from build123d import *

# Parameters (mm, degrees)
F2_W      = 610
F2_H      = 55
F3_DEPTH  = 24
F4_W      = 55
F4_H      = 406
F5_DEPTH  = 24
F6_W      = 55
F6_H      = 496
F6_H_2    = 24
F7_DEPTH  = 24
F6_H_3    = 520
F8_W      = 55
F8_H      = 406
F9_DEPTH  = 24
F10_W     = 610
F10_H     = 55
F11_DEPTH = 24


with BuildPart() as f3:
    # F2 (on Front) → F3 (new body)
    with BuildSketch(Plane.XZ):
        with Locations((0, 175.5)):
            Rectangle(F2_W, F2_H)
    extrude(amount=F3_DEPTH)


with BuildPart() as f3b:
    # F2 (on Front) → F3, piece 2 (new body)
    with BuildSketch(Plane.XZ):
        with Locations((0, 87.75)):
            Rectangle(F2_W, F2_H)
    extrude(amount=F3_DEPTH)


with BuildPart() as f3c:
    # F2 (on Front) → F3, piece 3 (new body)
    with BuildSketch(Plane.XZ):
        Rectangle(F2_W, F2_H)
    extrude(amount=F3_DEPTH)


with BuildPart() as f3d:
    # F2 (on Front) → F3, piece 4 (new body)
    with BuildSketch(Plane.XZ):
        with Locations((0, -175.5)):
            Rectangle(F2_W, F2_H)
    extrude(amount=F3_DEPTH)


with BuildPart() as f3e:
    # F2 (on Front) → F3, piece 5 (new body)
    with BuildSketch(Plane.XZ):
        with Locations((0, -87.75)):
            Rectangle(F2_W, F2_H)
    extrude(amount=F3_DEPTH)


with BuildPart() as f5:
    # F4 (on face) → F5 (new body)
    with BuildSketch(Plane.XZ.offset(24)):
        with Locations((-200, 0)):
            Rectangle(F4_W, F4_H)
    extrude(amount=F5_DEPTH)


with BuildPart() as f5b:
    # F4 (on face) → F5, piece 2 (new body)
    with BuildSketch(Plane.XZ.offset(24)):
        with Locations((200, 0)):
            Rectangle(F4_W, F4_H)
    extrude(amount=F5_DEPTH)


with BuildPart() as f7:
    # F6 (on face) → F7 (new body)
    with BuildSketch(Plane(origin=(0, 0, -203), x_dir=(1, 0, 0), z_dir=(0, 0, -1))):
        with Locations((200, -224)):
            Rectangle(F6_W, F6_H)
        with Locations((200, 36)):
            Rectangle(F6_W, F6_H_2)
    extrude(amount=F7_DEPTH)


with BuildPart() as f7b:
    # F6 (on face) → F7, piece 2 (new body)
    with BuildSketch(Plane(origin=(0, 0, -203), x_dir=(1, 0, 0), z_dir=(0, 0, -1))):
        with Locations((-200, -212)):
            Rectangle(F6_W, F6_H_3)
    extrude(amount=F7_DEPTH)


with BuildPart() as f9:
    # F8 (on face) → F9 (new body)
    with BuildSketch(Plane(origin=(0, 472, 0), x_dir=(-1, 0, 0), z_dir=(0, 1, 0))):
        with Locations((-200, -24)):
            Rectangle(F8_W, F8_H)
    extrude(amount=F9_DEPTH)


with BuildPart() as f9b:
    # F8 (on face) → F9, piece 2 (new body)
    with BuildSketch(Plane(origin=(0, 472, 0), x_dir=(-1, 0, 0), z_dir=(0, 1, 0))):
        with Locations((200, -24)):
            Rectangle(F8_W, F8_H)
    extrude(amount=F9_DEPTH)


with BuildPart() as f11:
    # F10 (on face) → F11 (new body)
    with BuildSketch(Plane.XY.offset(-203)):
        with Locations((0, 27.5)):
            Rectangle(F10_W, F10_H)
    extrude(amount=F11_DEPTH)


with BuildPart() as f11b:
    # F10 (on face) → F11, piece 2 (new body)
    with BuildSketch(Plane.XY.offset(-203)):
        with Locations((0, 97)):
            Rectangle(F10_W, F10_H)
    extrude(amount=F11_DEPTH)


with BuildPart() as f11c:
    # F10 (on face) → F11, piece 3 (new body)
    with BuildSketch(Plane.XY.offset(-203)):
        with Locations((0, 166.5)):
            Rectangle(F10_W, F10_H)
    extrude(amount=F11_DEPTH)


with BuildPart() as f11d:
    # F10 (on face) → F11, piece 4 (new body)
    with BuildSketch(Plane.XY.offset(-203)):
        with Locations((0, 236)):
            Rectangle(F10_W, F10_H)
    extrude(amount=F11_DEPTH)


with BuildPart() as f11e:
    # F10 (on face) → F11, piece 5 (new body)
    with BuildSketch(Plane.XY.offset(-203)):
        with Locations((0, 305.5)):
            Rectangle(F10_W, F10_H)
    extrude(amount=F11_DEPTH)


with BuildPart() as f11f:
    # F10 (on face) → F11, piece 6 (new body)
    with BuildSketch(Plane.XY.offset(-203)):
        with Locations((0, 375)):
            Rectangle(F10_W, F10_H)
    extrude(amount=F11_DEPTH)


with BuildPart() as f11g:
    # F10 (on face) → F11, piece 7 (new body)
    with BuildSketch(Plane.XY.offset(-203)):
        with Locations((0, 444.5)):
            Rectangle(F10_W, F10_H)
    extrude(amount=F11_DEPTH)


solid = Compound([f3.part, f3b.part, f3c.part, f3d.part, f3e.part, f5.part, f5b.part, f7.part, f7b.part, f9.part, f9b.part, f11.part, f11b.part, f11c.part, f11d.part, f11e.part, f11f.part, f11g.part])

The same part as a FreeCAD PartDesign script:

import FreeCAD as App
import Part
import Sketcher
Q = App.Units.Quantity

doc = App.newDocument("Part")
params = doc.addObject("Spreadsheet::Sheet", "Params")
for row, (alias, value) in enumerate([
    ("sketch1_width", "610 mm"),
    ("sketch1_height", "55 mm"),
    ("pad1_length", "24 mm"),
    ("sketch2_width", "610 mm"),
    ("sketch2_height", "55 mm"),
    ("pad2_length", "24 mm"),
    ("sketch3_width", "610 mm"),
    ("sketch3_height", "55 mm"),
    ("pad3_length", "24 mm"),
    ("sketch4_width", "610 mm"),
    ("sketch4_height", "55 mm"),
    ("pad4_length", "24 mm"),
    ("sketch5_width", "610 mm"),
    ("sketch5_height", "55 mm"),
    ("pad5_length", "24 mm"),
    ("sketch6_width", "55 mm"),
    ("sketch6_height", "406 mm"),
    ("pad6_length", "24 mm"),
    ("sketch7_width", "55 mm"),
    ("sketch7_height", "406 mm"),
    ("pad7_length", "24 mm"),
    ("sketch8_width", "55 mm"),
    ("sketch8_height", "520 mm"),
    ("pad8_length", "24 mm"),
    ("sketch9_width", "55 mm"),
    ("sketch9_height", "520 mm"),
    ("pad9_length", "24 mm"),
    ("sketch10_width", "55 mm"),
    ("sketch10_height", "406 mm"),
    ("pad10_length", "24 mm"),
    ("sketch11_width", "55 mm"),
    ("sketch11_height", "406 mm"),
    ("pad11_length", "24 mm"),
    ("sketch12_width", "610 mm"),
    ("sketch12_height", "55 mm"),
    ("pad12_length", "24 mm"),
    ("sketch13_width", "610 mm"),
    ("sketch13_height", "55 mm"),
    ("pad13_length", "24 mm"),
    ("sketch14_width", "610 mm"),
    ("sketch14_height", "55 mm"),
    ("pad14_length", "24 mm"),
    ("sketch15_width", "610 mm"),
    ("sketch15_height", "55 mm"),
    ("pad15_length", "24 mm"),
    ("sketch16_width", "610 mm"),
    ("sketch16_height", "55 mm"),
    ("pad16_length", "24 mm"),
    ("sketch17_width", "610 mm"),
    ("sketch17_height", "55 mm"),
    ("pad17_length", "24 mm"),
    ("sketch18_width", "610 mm"),
    ("sketch18_height", "55 mm"),
    ("pad18_length", "24 mm"),
], start=1):
    params.set(f"A{row}", alias)
    params.set(f"B{row}", "=" + value)
    params.setAlias(f"B{row}", alias)

body = doc.addObject("PartDesign::Body", "Body")

sketch1 = doc.addObject("Sketcher::SketchObject", "Sketch")
body.addObject(sketch1)
sketch1.AttachmentSupport = (doc.XZ_Plane, [""])
sketch1.MapMode = "FlatFace"
sketch1.addGeometry([
    Part.LineSegment(App.Vector(-305, 203, 0), App.Vector(-305, 148, 0)),
    Part.LineSegment(App.Vector(-305, 148, 0), App.Vector(305, 148, 0)),
    Part.LineSegment(App.Vector(305, 148, 0), App.Vector(305, 203, 0)),
    Part.LineSegment(App.Vector(305, 203, 0), App.Vector(-305, 203, 0)),
], False)
sketch1.addConstraint([
    Sketcher.Constraint("Coincident", 0, 2, 1, 1),
    Sketcher.Constraint("Coincident", 1, 2, 2, 1),
    Sketcher.Constraint("Coincident", 2, 2, 3, 1),
    Sketcher.Constraint("Coincident", 3, 2, 0, 1),
    Sketcher.Constraint("Vertical", 0),
    Sketcher.Constraint("Horizontal", 1),
    Sketcher.Constraint("Vertical", 2),
    Sketcher.Constraint("Horizontal", 3),
    Sketcher.Constraint("DistanceX", 1, 1, 1, 2, Q("610 mm")),
    Sketcher.Constraint("DistanceY", 0, 2, 0, 1, Q("55 mm")),
    Sketcher.Constraint("DistanceX", 0, 2, -1, 1, Q("305 mm")),
    Sketcher.Constraint("DistanceY", -1, 1, 0, 2, Q("148 mm")),
])
sketch1.setExpression("Constraints[8]", "Params.sketch1_width")
sketch1.setExpression("Constraints[9]", "Params.sketch1_height")
pad1 = doc.addObject("PartDesign::Pad", "Pad")
body.addObject(pad1)
pad1.Profile = sketch1
pad1.setExpression("Length", "Params.pad1_length")
body2 = doc.addObject("PartDesign::Body", "Body001")

sketch2 = doc.addObject("Sketcher::SketchObject", "Sketch001")
body2.addObject(sketch2)
sketch2.AttachmentSupport = (doc.getObject("XZ_Plane001"), [""])
sketch2.MapMode = "FlatFace"
sketch2.addGeometry([
    Part.LineSegment(App.Vector(-305, 115, 0), App.Vector(-305, 60, 0)),
    Part.LineSegment(App.Vector(-305, 60, 0), App.Vector(305, 60, 0)),
    Part.LineSegment(App.Vector(305, 60, 0), App.Vector(305, 115, 0)),
    Part.LineSegment(App.Vector(305, 115, 0), App.Vector(-305, 115, 0)),
], False)
sketch2.addConstraint([
    Sketcher.Constraint("Coincident", 0, 2, 1, 1),
    Sketcher.Constraint("Coincident", 1, 2, 2, 1),
    Sketcher.Constraint("Coincident", 2, 2, 3, 1),
    Sketcher.Constraint("Coincident", 3, 2, 0, 1),
    Sketcher.Constraint("Vertical", 0),
    Sketcher.Constraint("Horizontal", 1),
    Sketcher.Constraint("Vertical", 2),
    Sketcher.Constraint("Horizontal", 3),
    Sketcher.Constraint("DistanceX", 1, 1, 1, 2, Q("610 mm")),
    Sketcher.Constraint("DistanceY", 0, 2, 0, 1, Q("55 mm")),
    Sketcher.Constraint("DistanceX", 0, 2, -1, 1, Q("305 mm")),
    Sketcher.Constraint("DistanceY", -1, 1, 0, 2, Q("60.25 mm")),
])
sketch2.setExpression("Constraints[8]", "Params.sketch2_width")
sketch2.setExpression("Constraints[9]", "Params.sketch2_height")
pad2 = doc.addObject("PartDesign::Pad", "Pad001")
body2.addObject(pad2)
pad2.Profile = sketch2
pad2.setExpression("Length", "Params.pad2_length")
body3 = doc.addObject("PartDesign::Body", "Body002")

sketch3 = doc.addObject("Sketcher::SketchObject", "Sketch002")
body3.addObject(sketch3)
sketch3.AttachmentSupport = (doc.getObject("XZ_Plane002"), [""])
sketch3.MapMode = "FlatFace"
sketch3.addGeometry([
    Part.LineSegment(App.Vector(-305, 28, 0), App.Vector(-305, -28, 0)),
    Part.LineSegment(App.Vector(-305, -28, 0), App.Vector(305, -28, 0)),
    Part.LineSegment(App.Vector(305, -28, 0), App.Vector(305, 28, 0)),
    Part.LineSegment(App.Vector(305, 28, 0), App.Vector(-305, 28, 0)),
], False)
sketch3.addConstraint([
    Sketcher.Constraint("Coincident", 0, 2, 1, 1),
    Sketcher.Constraint("Coincident", 1, 2, 2, 1),
    Sketcher.Constraint("Coincident", 2, 2, 3, 1),
    Sketcher.Constraint("Coincident", 3, 2, 0, 1),
    Sketcher.Constraint("Vertical", 0),
    Sketcher.Constraint("Horizontal", 1),
    Sketcher.Constraint("Vertical", 2),
    Sketcher.Constraint("Horizontal", 3),
    Sketcher.Constraint("Symmetric", 0, 2, 2, 2, -1, 1),
    Sketcher.Constraint("DistanceX", 1, 1, 1, 2, Q("610 mm")),
    Sketcher.Constraint("DistanceY", 0, 2, 0, 1, Q("55 mm")),
])
sketch3.setExpression("Constraints[9]", "Params.sketch3_width")
sketch3.setExpression("Constraints[10]", "Params.sketch3_height")
pad3 = doc.addObject("PartDesign::Pad", "Pad002")
body3.addObject(pad3)
pad3.Profile = sketch3
pad3.setExpression("Length", "Params.pad3_length")
body4 = doc.addObject("PartDesign::Body", "Body003")

sketch4 = doc.addObject("Sketcher::SketchObject", "Sketch003")
body4.addObject(sketch4)
sketch4.AttachmentSupport = (doc.getObject("XZ_Plane003"), [""])
sketch4.MapMode = "FlatFace"
sketch4.addGeometry([
    Part.LineSegment(App.Vector(-305, -148, 0), App.Vector(-305, -203, 0)),
    Part.LineSegment(App.Vector(-305, -203, 0), App.Vector(305, -203, 0)),
    Part.LineSegment(App.Vector(305, -203, 0), App.Vector(305, -148, 0)),
    Part.LineSegment(App.Vector(305, -148, 0), App.Vector(-305, -148, 0)),
], False)
sketch4.addConstraint([
    Sketcher.Constraint("Coincident", 0, 2, 1, 1),
    Sketcher.Constraint("Coincident", 1, 2, 2, 1),
    Sketcher.Constraint("Coincident", 2, 2, 3, 1),
    Sketcher.Constraint("Coincident", 3, 2, 0, 1),
    Sketcher.Constraint("Vertical", 0),
    Sketcher.Constraint("Horizontal", 1),
    Sketcher.Constraint("Vertical", 2),
    Sketcher.Constraint("Horizontal", 3),
    Sketcher.Constraint("DistanceX", 1, 1, 1, 2, Q("610 mm")),
    Sketcher.Constraint("DistanceY", 0, 2, 0, 1, Q("55 mm")),
    Sketcher.Constraint("DistanceX", 0, 2, -1, 1, Q("305 mm")),
    Sketcher.Constraint("DistanceY", 0, 2, -1, 1, Q("203 mm")),
])
sketch4.setExpression("Constraints[8]", "Params.sketch4_width")
sketch4.setExpression("Constraints[9]", "Params.sketch4_height")
pad4 = doc.addObject("PartDesign::Pad", "Pad003")
body4.addObject(pad4)
pad4.Profile = sketch4
pad4.setExpression("Length", "Params.pad4_length")
body5 = doc.addObject("PartDesign::Body", "Body004")

sketch5 = doc.addObject("Sketcher::SketchObject", "Sketch004")
body5.addObject(sketch5)
sketch5.AttachmentSupport = (doc.getObject("XZ_Plane004"), [""])
sketch5.MapMode = "FlatFace"
sketch5.addGeometry([
    Part.LineSegment(App.Vector(-305, -60, 0), App.Vector(-305, -115, 0)),
    Part.LineSegment(App.Vector(-305, -115, 0), App.Vector(305, -115, 0)),
    Part.LineSegment(App.Vector(305, -115, 0), App.Vector(305, -60, 0)),
    Part.LineSegment(App.Vector(305, -60, 0), App.Vector(-305, -60, 0)),
], False)
sketch5.addConstraint([
    Sketcher.Constraint("Coincident", 0, 2, 1, 1),
    Sketcher.Constraint("Coincident", 1, 2, 2, 1),
    Sketcher.Constraint("Coincident", 2, 2, 3, 1),
    Sketcher.Constraint("Coincident", 3, 2, 0, 1),
    Sketcher.Constraint("Vertical", 0),
    Sketcher.Constraint("Horizontal", 1),
    Sketcher.Constraint("Vertical", 2),
    Sketcher.Constraint("Horizontal", 3),
    Sketcher.Constraint("DistanceX", 1, 1, 1, 2, Q("610 mm")),
    Sketcher.Constraint("DistanceY", 0, 2, 0, 1, Q("55 mm")),
    Sketcher.Constraint("DistanceX", 0, 2, -1, 1, Q("305 mm")),
    Sketcher.Constraint("DistanceY", 0, 2, -1, 1, Q("115.25 mm")),
])
sketch5.setExpression("Constraints[8]", "Params.sketch5_width")
sketch5.setExpression("Constraints[9]", "Params.sketch5_height")
pad5 = doc.addObject("PartDesign::Pad", "Pad004")
body5.addObject(pad5)
pad5.Profile = sketch5
pad5.setExpression("Length", "Params.pad5_length")
body6 = doc.addObject("PartDesign::Body", "Body005")

sketch6 = doc.addObject("Sketcher::SketchObject", "Sketch005")
body6.addObject(sketch6)
sketch6.AttachmentSupport = (doc.getObject("XZ_Plane005"), [""])
sketch6.MapMode = "FlatFace"
sketch6.AttachmentOffset = App.Placement(App.Vector(0, 0, 24), App.Rotation())
sketch6.addGeometry([
    Part.LineSegment(App.Vector(-228, 203, 0), App.Vector(-228, -203, 0)),
    Part.LineSegment(App.Vector(-228, -203, 0), App.Vector(-172, -203, 0)),
    Part.LineSegment(App.Vector(-172, -203, 0), App.Vector(-172, 203, 0)),
    Part.LineSegment(App.Vector(-172, 203, 0), App.Vector(-228, 203, 0)),
], False)
sketch6.addConstraint([
    Sketcher.Constraint("Coincident", 0, 2, 1, 1),
    Sketcher.Constraint("Coincident", 1, 2, 2, 1),
    Sketcher.Constraint("Coincident", 2, 2, 3, 1),
    Sketcher.Constraint("Coincident", 3, 2, 0, 1),
    Sketcher.Constraint("Vertical", 0),
    Sketcher.Constraint("Horizontal", 1),
    Sketcher.Constraint("Vertical", 2),
    Sketcher.Constraint("Horizontal", 3),
    Sketcher.Constraint("DistanceX", 1, 1, 1, 2, Q("55 mm")),
    Sketcher.Constraint("DistanceY", 0, 2, 0, 1, Q("406 mm")),
    Sketcher.Constraint("DistanceY", 0, 2, -1, 1, Q("203 mm")),
    Sketcher.Constraint("DistanceX", 0, 2, -1, 1, Q("227.5 mm")),
])
sketch6.setExpression("Constraints[8]", "Params.sketch6_width")
sketch6.setExpression("Constraints[9]", "Params.sketch6_height")
pad6 = doc.addObject("PartDesign::Pad", "Pad005")
body6.addObject(pad6)
pad6.Profile = sketch6
pad6.setExpression("Length", "Params.pad6_length")
body7 = doc.addObject("PartDesign::Body", "Body006")

sketch7 = doc.addObject("Sketcher::SketchObject", "Sketch006")
body7.addObject(sketch7)
sketch7.AttachmentSupport = (doc.getObject("XZ_Plane006"), [""])
sketch7.MapMode = "FlatFace"
sketch7.AttachmentOffset = App.Placement(App.Vector(0, 0, 24), App.Rotation())
sketch7.addGeometry([
    Part.LineSegment(App.Vector(172, 203, 0), App.Vector(172, -203, 0)),
    Part.LineSegment(App.Vector(172, -203, 0), App.Vector(228, -203, 0)),
    Part.LineSegment(App.Vector(228, -203, 0), App.Vector(228, 203, 0)),
    Part.LineSegment(App.Vector(228, 203, 0), App.Vector(172, 203, 0)),
], False)
sketch7.addConstraint([
    Sketcher.Constraint("Coincident", 0, 2, 1, 1),
    Sketcher.Constraint("Coincident", 1, 2, 2, 1),
    Sketcher.Constraint("Coincident", 2, 2, 3, 1),
    Sketcher.Constraint("Coincident", 3, 2, 0, 1),
    Sketcher.Constraint("Vertical", 0),
    Sketcher.Constraint("Horizontal", 1),
    Sketcher.Constraint("Vertical", 2),
    Sketcher.Constraint("Horizontal", 3),
    Sketcher.Constraint("DistanceX", 1, 1, 1, 2, Q("55 mm")),
    Sketcher.Constraint("DistanceY", 0, 2, 0, 1, Q("406 mm")),
    Sketcher.Constraint("DistanceY", 0, 2, -1, 1, Q("203 mm")),
    Sketcher.Constraint("DistanceX", -1, 1, 0, 2, Q("172.5 mm")),
])
sketch7.setExpression("Constraints[8]", "Params.sketch7_width")
sketch7.setExpression("Constraints[9]", "Params.sketch7_height")
pad7 = doc.addObject("PartDesign::Pad", "Pad006")
body7.addObject(pad7)
pad7.Profile = sketch7
pad7.setExpression("Length", "Params.pad7_length")
body8 = doc.addObject("PartDesign::Body", "Body007")

sketch8 = doc.addObject("Sketcher::SketchObject", "Sketch007")
body8.addObject(sketch8)
sketch8.AttachmentSupport = (doc.getObject("XY_Plane007"), [""])
sketch8.MapMode = "FlatFace"
sketch8.AttachmentOffset = App.Placement(App.Vector(0, 0, -203), App.Rotation())
sketch8.addGeometry([
    Part.LineSegment(App.Vector(172, 472, 0), App.Vector(228, 472, 0)),
    Part.LineSegment(App.Vector(228, 472, 0), App.Vector(228, -48, 0)),
    Part.LineSegment(App.Vector(228, -48, 0), App.Vector(172, -48, 0)),
    Part.LineSegment(App.Vector(172, -48, 0), App.Vector(172, 472, 0)),
], False)
sketch8.addConstraint([
    Sketcher.Constraint("Coincident", 0, 2, 1, 1),
    Sketcher.Constraint("Coincident", 1, 2, 2, 1),
    Sketcher.Constraint("Coincident", 2, 2, 3, 1),
    Sketcher.Constraint("Coincident", 3, 2, 0, 1),
    Sketcher.Constraint("Horizontal", 0),
    Sketcher.Constraint("Vertical", 1),
    Sketcher.Constraint("Horizontal", 2),
    Sketcher.Constraint("Vertical", 3),
    Sketcher.Constraint("DistanceX", 0, 1, 0, 2, Q("55 mm")),
    Sketcher.Constraint("DistanceY", 1, 2, 1, 1, Q("520 mm")),
    Sketcher.Constraint("DistanceY", -1, 1, 0, 2, Q("472 mm")),
    Sketcher.Constraint("DistanceX", -1, 1, 0, 2, Q("227.5 mm")),
])
sketch8.setExpression("Constraints[8]", "Params.sketch8_width")
sketch8.setExpression("Constraints[9]", "Params.sketch8_height")
pad8 = doc.addObject("PartDesign::Pad", "Pad007")
body8.addObject(pad8)
pad8.Profile = sketch8
pad8.setExpression("Length", "Params.pad8_length")
pad8.Reversed = True
body9 = doc.addObject("PartDesign::Body", "Body008")

sketch9 = doc.addObject("Sketcher::SketchObject", "Sketch008")
body9.addObject(sketch9)
sketch9.AttachmentSupport = (doc.getObject("XY_Plane008"), [""])
sketch9.MapMode = "FlatFace"
sketch9.AttachmentOffset = App.Placement(App.Vector(0, 0, -203), App.Rotation())
sketch9.addGeometry([
    Part.LineSegment(App.Vector(-228, -48, 0), App.Vector(-228, 472, 0)),
    Part.LineSegment(App.Vector(-228, 472, 0), App.Vector(-172, 472, 0)),
    Part.LineSegment(App.Vector(-172, 472, 0), App.Vector(-172, -48, 0)),
    Part.LineSegment(App.Vector(-172, -48, 0), App.Vector(-228, -48, 0)),
], False)
sketch9.addConstraint([
    Sketcher.Constraint("Coincident", 0, 2, 1, 1),
    Sketcher.Constraint("Coincident", 1, 2, 2, 1),
    Sketcher.Constraint("Coincident", 2, 2, 3, 1),
    Sketcher.Constraint("Coincident", 3, 2, 0, 1),
    Sketcher.Constraint("Vertical", 0),
    Sketcher.Constraint("Horizontal", 1),
    Sketcher.Constraint("Vertical", 2),
    Sketcher.Constraint("Horizontal", 3),
    Sketcher.Constraint("DistanceX", 1, 1, 1, 2, Q("55 mm")),
    Sketcher.Constraint("DistanceY", 0, 1, 0, 2, Q("520 mm")),
    Sketcher.Constraint("DistanceY", -1, 1, 0, 2, Q("472 mm")),
    Sketcher.Constraint("DistanceX", 0, 2, -1, 1, Q("227.5 mm")),
])
sketch9.setExpression("Constraints[8]", "Params.sketch9_width")
sketch9.setExpression("Constraints[9]", "Params.sketch9_height")
pad9 = doc.addObject("PartDesign::Pad", "Pad008")
body9.addObject(pad9)
pad9.Profile = sketch9
pad9.setExpression("Length", "Params.pad9_length")
pad9.Reversed = True
body10 = doc.addObject("PartDesign::Body", "Body009")

sketch10 = doc.addObject("Sketcher::SketchObject", "Sketch009")
body10.addObject(sketch10)
sketch10.AttachmentSupport = (doc.getObject("XZ_Plane009"), [""])
sketch10.MapMode = "FlatFace"
sketch10.AttachmentOffset = App.Placement(App.Vector(0, 0, -472), App.Rotation())
sketch10.addGeometry([
    Part.LineSegment(App.Vector(228, 179, 0), App.Vector(228, -227, 0)),
    Part.LineSegment(App.Vector(228, -227, 0), App.Vector(172, -227, 0)),
    Part.LineSegment(App.Vector(172, -227, 0), App.Vector(172, 179, 0)),
    Part.LineSegment(App.Vector(172, 179, 0), App.Vector(228, 179, 0)),
], False)
sketch10.addConstraint([
    Sketcher.Constraint("Coincident", 0, 2, 1, 1),
    Sketcher.Constraint("Coincident", 1, 2, 2, 1),
    Sketcher.Constraint("Coincident", 2, 2, 3, 1),
    Sketcher.Constraint("Coincident", 3, 2, 0, 1),
    Sketcher.Constraint("Vertical", 0),
    Sketcher.Constraint("Horizontal", 1),
    Sketcher.Constraint("Vertical", 2),
    Sketcher.Constraint("Horizontal", 3),
    Sketcher.Constraint("DistanceX", 1, 2, 1, 1, Q("55 mm")),
    Sketcher.Constraint("DistanceY", 0, 2, 0, 1, Q("406 mm")),
    Sketcher.Constraint("DistanceY", 0, 2, -1, 1, Q("227 mm")),
    Sketcher.Constraint("DistanceX", -1, 1, 0, 2, Q("227.5 mm")),
])
sketch10.setExpression("Constraints[8]", "Params.sketch10_width")
sketch10.setExpression("Constraints[9]", "Params.sketch10_height")
pad10 = doc.addObject("PartDesign::Pad", "Pad009")
body10.addObject(pad10)
pad10.Profile = sketch10
pad10.setExpression("Length", "Params.pad10_length")
pad10.Reversed = True
body11 = doc.addObject("PartDesign::Body", "Body010")

sketch11 = doc.addObject("Sketcher::SketchObject", "Sketch010")
body11.addObject(sketch11)
sketch11.AttachmentSupport = (doc.getObject("XZ_Plane010"), [""])
sketch11.MapMode = "FlatFace"
sketch11.AttachmentOffset = App.Placement(App.Vector(0, 0, -472), App.Rotation())
sketch11.addGeometry([
    Part.LineSegment(App.Vector(-172, 179, 0), App.Vector(-172, -227, 0)),
    Part.LineSegment(App.Vector(-172, -227, 0), App.Vector(-228, -227, 0)),
    Part.LineSegment(App.Vector(-228, -227, 0), App.Vector(-228, 179, 0)),
    Part.LineSegment(App.Vector(-228, 179, 0), App.Vector(-172, 179, 0)),
], False)
sketch11.addConstraint([
    Sketcher.Constraint("Coincident", 0, 2, 1, 1),
    Sketcher.Constraint("Coincident", 1, 2, 2, 1),
    Sketcher.Constraint("Coincident", 2, 2, 3, 1),
    Sketcher.Constraint("Coincident", 3, 2, 0, 1),
    Sketcher.Constraint("Vertical", 0),
    Sketcher.Constraint("Horizontal", 1),
    Sketcher.Constraint("Vertical", 2),
    Sketcher.Constraint("Horizontal", 3),
    Sketcher.Constraint("DistanceX", 1, 2, 1, 1, Q("55 mm")),
    Sketcher.Constraint("DistanceY", 0, 2, 0, 1, Q("406 mm")),
    Sketcher.Constraint("DistanceY", 0, 2, -1, 1, Q("227 mm")),
    Sketcher.Constraint("DistanceX", 0, 2, -1, 1, Q("172.5 mm")),
])
sketch11.setExpression("Constraints[8]", "Params.sketch11_width")
sketch11.setExpression("Constraints[9]", "Params.sketch11_height")
pad11 = doc.addObject("PartDesign::Pad", "Pad010")
body11.addObject(pad11)
pad11.Profile = sketch11
pad11.setExpression("Length", "Params.pad11_length")
pad11.Reversed = True
body12 = doc.addObject("PartDesign::Body", "Body011")

sketch12 = doc.addObject("Sketcher::SketchObject", "Sketch011")
body12.addObject(sketch12)
sketch12.AttachmentSupport = (doc.getObject("XY_Plane011"), [""])
sketch12.MapMode = "FlatFace"
sketch12.AttachmentOffset = App.Placement(App.Vector(0, 0, -203), App.Rotation())
sketch12.addGeometry([
    Part.LineSegment(App.Vector(-305, 55, 0), App.Vector(-305, 0, 0)),
    Part.LineSegment(App.Vector(-305, 0, 0), App.Vector(305, 0, 0)),
    Part.LineSegment(App.Vector(305, 0, 0), App.Vector(305, 55, 0)),
    Part.LineSegment(App.Vector(305, 55, 0), App.Vector(-305, 55, 0)),
], False)
sketch12.addConstraint([
    Sketcher.Constraint("Coincident", 0, 2, 1, 1),
    Sketcher.Constraint("Coincident", 1, 2, 2, 1),
    Sketcher.Constraint("Coincident", 2, 2, 3, 1),
    Sketcher.Constraint("Coincident", 3, 2, 0, 1),
    Sketcher.Constraint("Vertical", 0),
    Sketcher.Constraint("Horizontal", 1),
    Sketcher.Constraint("Vertical", 2),
    Sketcher.Constraint("Horizontal", 3),
    Sketcher.Constraint("Symmetric", 0, 2, 1, 2, -1, 1),
    Sketcher.Constraint("DistanceX", 1, 1, 1, 2, Q("610 mm")),
    Sketcher.Constraint("DistanceY", 0, 2, 0, 1, Q("55 mm")),
])
sketch12.setExpression("Constraints[9]", "Params.sketch12_width")
sketch12.setExpression("Constraints[10]", "Params.sketch12_height")
pad12 = doc.addObject("PartDesign::Pad", "Pad011")
body12.addObject(pad12)
pad12.Profile = sketch12
pad12.setExpression("Length", "Params.pad12_length")
body13 = doc.addObject("PartDesign::Body", "Body012")

sketch13 = doc.addObject("Sketcher::SketchObject", "Sketch012")
body13.addObject(sketch13)
sketch13.AttachmentSupport = (doc.getObject("XY_Plane012"), [""])
sketch13.MapMode = "FlatFace"
sketch13.AttachmentOffset = App.Placement(App.Vector(0, 0, -203), App.Rotation())
sketch13.addGeometry([
    Part.LineSegment(App.Vector(-305, 124, 0), App.Vector(-305, 70, 0)),
    Part.LineSegment(App.Vector(-305, 70, 0), App.Vector(305, 70, 0)),
    Part.LineSegment(App.Vector(305, 70, 0), App.Vector(305, 124, 0)),
    Part.LineSegment(App.Vector(305, 124, 0), App.Vector(-305, 124, 0)),
], False)
sketch13.addConstraint([
    Sketcher.Constraint("Coincident", 0, 2, 1, 1),
    Sketcher.Constraint("Coincident", 1, 2, 2, 1),
    Sketcher.Constraint("Coincident", 2, 2, 3, 1),
    Sketcher.Constraint("Coincident", 3, 2, 0, 1),
    Sketcher.Constraint("Vertical", 0),
    Sketcher.Constraint("Horizontal", 1),
    Sketcher.Constraint("Vertical", 2),
    Sketcher.Constraint("Horizontal", 3),
    Sketcher.Constraint("DistanceX", 1, 1, 1, 2, Q("610 mm")),
    Sketcher.Constraint("DistanceY", 0, 2, 0, 1, Q("55 mm")),
    Sketcher.Constraint("DistanceX", 0, 2, -1, 1, Q("305 mm")),
    Sketcher.Constraint("DistanceY", -1, 1, 0, 2, Q("69.5 mm")),
])
sketch13.setExpression("Constraints[8]", "Params.sketch13_width")
sketch13.setExpression("Constraints[9]", "Params.sketch13_height")
pad13 = doc.addObject("PartDesign::Pad", "Pad012")
body13.addObject(pad13)
pad13.Profile = sketch13
pad13.setExpression("Length", "Params.pad13_length")
body14 = doc.addObject("PartDesign::Body", "Body013")

sketch14 = doc.addObject("Sketcher::SketchObject", "Sketch013")
body14.addObject(sketch14)
sketch14.AttachmentSupport = (doc.getObject("XY_Plane013"), [""])
sketch14.MapMode = "FlatFace"
sketch14.AttachmentOffset = App.Placement(App.Vector(0, 0, -203), App.Rotation())
sketch14.addGeometry([
    Part.LineSegment(App.Vector(-305, 194, 0), App.Vector(-305, 139, 0)),
    Part.LineSegment(App.Vector(-305, 139, 0), App.Vector(305, 139, 0)),
    Part.LineSegment(App.Vector(305, 139, 0), App.Vector(305, 194, 0)),
    Part.LineSegment(App.Vector(305, 194, 0), App.Vector(-305, 194, 0)),
], False)
sketch14.addConstraint([
    Sketcher.Constraint("Coincident", 0, 2, 1, 1),
    Sketcher.Constraint("Coincident", 1, 2, 2, 1),
    Sketcher.Constraint("Coincident", 2, 2, 3, 1),
    Sketcher.Constraint("Coincident", 3, 2, 0, 1),
    Sketcher.Constraint("Vertical", 0),
    Sketcher.Constraint("Horizontal", 1),
    Sketcher.Constraint("Vertical", 2),
    Sketcher.Constraint("Horizontal", 3),
    Sketcher.Constraint("DistanceX", 1, 1, 1, 2, Q("610 mm")),
    Sketcher.Constraint("DistanceY", 0, 2, 0, 1, Q("55 mm")),
    Sketcher.Constraint("DistanceX", 0, 2, -1, 1, Q("305 mm")),
    Sketcher.Constraint("DistanceY", -1, 1, 0, 2, Q("139 mm")),
])
sketch14.setExpression("Constraints[8]", "Params.sketch14_width")
sketch14.setExpression("Constraints[9]", "Params.sketch14_height")
pad14 = doc.addObject("PartDesign::Pad", "Pad013")
body14.addObject(pad14)
pad14.Profile = sketch14
pad14.setExpression("Length", "Params.pad14_length")
body15 = doc.addObject("PartDesign::Body", "Body014")

sketch15 = doc.addObject("Sketcher::SketchObject", "Sketch014")
body15.addObject(sketch15)
sketch15.AttachmentSupport = (doc.getObject("XY_Plane014"), [""])
sketch15.MapMode = "FlatFace"
sketch15.AttachmentOffset = App.Placement(App.Vector(0, 0, -203), App.Rotation())
sketch15.addGeometry([
    Part.LineSegment(App.Vector(-305, 264, 0), App.Vector(-305, 208, 0)),
    Part.LineSegment(App.Vector(-305, 208, 0), App.Vector(305, 208, 0)),
    Part.LineSegment(App.Vector(305, 208, 0), App.Vector(305, 264, 0)),
    Part.LineSegment(App.Vector(305, 264, 0), App.Vector(-305, 264, 0)),
], False)
sketch15.addConstraint([
    Sketcher.Constraint("Coincident", 0, 2, 1, 1),
    Sketcher.Constraint("Coincident", 1, 2, 2, 1),
    Sketcher.Constraint("Coincident", 2, 2, 3, 1),
    Sketcher.Constraint("Coincident", 3, 2, 0, 1),
    Sketcher.Constraint("Vertical", 0),
    Sketcher.Constraint("Horizontal", 1),
    Sketcher.Constraint("Vertical", 2),
    Sketcher.Constraint("Horizontal", 3),
    Sketcher.Constraint("DistanceX", 1, 1, 1, 2, Q("610 mm")),
    Sketcher.Constraint("DistanceY", 0, 2, 0, 1, Q("55 mm")),
    Sketcher.Constraint("DistanceX", 0, 2, -1, 1, Q("305 mm")),
    Sketcher.Constraint("DistanceY", -1, 1, 0, 2, Q("208.5 mm")),
])
sketch15.setExpression("Constraints[8]", "Params.sketch15_width")
sketch15.setExpression("Constraints[9]", "Params.sketch15_height")
pad15 = doc.addObject("PartDesign::Pad", "Pad014")
body15.addObject(pad15)
pad15.Profile = sketch15
pad15.setExpression("Length", "Params.pad15_length")
body16 = doc.addObject("PartDesign::Body", "Body015")

sketch16 = doc.addObject("Sketcher::SketchObject", "Sketch015")
body16.addObject(sketch16)
sketch16.AttachmentSupport = (doc.getObject("XY_Plane015"), [""])
sketch16.MapMode = "FlatFace"
sketch16.AttachmentOffset = App.Placement(App.Vector(0, 0, -203), App.Rotation())
sketch16.addGeometry([
    Part.LineSegment(App.Vector(-305, 333, 0), App.Vector(-305, 278, 0)),
    Part.LineSegment(App.Vector(-305, 278, 0), App.Vector(305, 278, 0)),
    Part.LineSegment(App.Vector(305, 278, 0), App.Vector(305, 333, 0)),
    Part.LineSegment(App.Vector(305, 333, 0), App.Vector(-305, 333, 0)),
], False)
sketch16.addConstraint([
    Sketcher.Constraint("Coincident", 0, 2, 1, 1),
    Sketcher.Constraint("Coincident", 1, 2, 2, 1),
    Sketcher.Constraint("Coincident", 2, 2, 3, 1),
    Sketcher.Constraint("Coincident", 3, 2, 0, 1),
    Sketcher.Constraint("Vertical", 0),
    Sketcher.Constraint("Horizontal", 1),
    Sketcher.Constraint("Vertical", 2),
    Sketcher.Constraint("Horizontal", 3),
    Sketcher.Constraint("DistanceX", 1, 1, 1, 2, Q("610 mm")),
    Sketcher.Constraint("DistanceY", 0, 2, 0, 1, Q("55 mm")),
    Sketcher.Constraint("DistanceX", 0, 2, -1, 1, Q("305 mm")),
    Sketcher.Constraint("DistanceY", -1, 1, 0, 2, Q("278 mm")),
])
sketch16.setExpression("Constraints[8]", "Params.sketch16_width")
sketch16.setExpression("Constraints[9]", "Params.sketch16_height")
pad16 = doc.addObject("PartDesign::Pad", "Pad015")
body16.addObject(pad16)
pad16.Profile = sketch16
pad16.setExpression("Length", "Params.pad16_length")
body17 = doc.addObject("PartDesign::Body", "Body016")

sketch17 = doc.addObject("Sketcher::SketchObject", "Sketch016")
body17.addObject(sketch17)
sketch17.AttachmentSupport = (doc.getObject("XY_Plane016"), [""])
sketch17.MapMode = "FlatFace"
sketch17.AttachmentOffset = App.Placement(App.Vector(0, 0, -203), App.Rotation())
sketch17.addGeometry([
    Part.LineSegment(App.Vector(-305, 402, 0), App.Vector(-305, 348, 0)),
    Part.LineSegment(App.Vector(-305, 348, 0), App.Vector(305, 348, 0)),
    Part.LineSegment(App.Vector(305, 348, 0), App.Vector(305, 402, 0)),
    Part.LineSegment(App.Vector(305, 402, 0), App.Vector(-305, 402, 0)),
], False)
sketch17.addConstraint([
    Sketcher.Constraint("Coincident", 0, 2, 1, 1),
    Sketcher.Constraint("Coincident", 1, 2, 2, 1),
    Sketcher.Constraint("Coincident", 2, 2, 3, 1),
    Sketcher.Constraint("Coincident", 3, 2, 0, 1),
    Sketcher.Constraint("Vertical", 0),
    Sketcher.Constraint("Horizontal", 1),
    Sketcher.Constraint("Vertical", 2),
    Sketcher.Constraint("Horizontal", 3),
    Sketcher.Constraint("DistanceX", 1, 1, 1, 2, Q("610 mm")),
    Sketcher.Constraint("DistanceY", 0, 2, 0, 1, Q("55 mm")),
    Sketcher.Constraint("DistanceX", 0, 2, -1, 1, Q("305 mm")),
    Sketcher.Constraint("DistanceY", -1, 1, 0, 2, Q("347.5 mm")),
])
sketch17.setExpression("Constraints[8]", "Params.sketch17_width")
sketch17.setExpression("Constraints[9]", "Params.sketch17_height")
pad17 = doc.addObject("PartDesign::Pad", "Pad016")
body17.addObject(pad17)
pad17.Profile = sketch17
pad17.setExpression("Length", "Params.pad17_length")
body18 = doc.addObject("PartDesign::Body", "Body017")

sketch18 = doc.addObject("Sketcher::SketchObject", "Sketch017")
body18.addObject(sketch18)
sketch18.AttachmentSupport = (doc.getObject("XY_Plane017"), [""])
sketch18.MapMode = "FlatFace"
sketch18.AttachmentOffset = App.Placement(App.Vector(0, 0, -203), App.Rotation())
sketch18.addGeometry([
    Part.LineSegment(App.Vector(-305, 472, 0), App.Vector(-305, 417, 0)),
    Part.LineSegment(App.Vector(-305, 417, 0), App.Vector(305, 417, 0)),
    Part.LineSegment(App.Vector(305, 417, 0), App.Vector(305, 472, 0)),
    Part.LineSegment(App.Vector(305, 472, 0), App.Vector(-305, 472, 0)),
], False)
sketch18.addConstraint([
    Sketcher.Constraint("Coincident", 0, 2, 1, 1),
    Sketcher.Constraint("Coincident", 1, 2, 2, 1),
    Sketcher.Constraint("Coincident", 2, 2, 3, 1),
    Sketcher.Constraint("Coincident", 3, 2, 0, 1),
    Sketcher.Constraint("Vertical", 0),
    Sketcher.Constraint("Horizontal", 1),
    Sketcher.Constraint("Vertical", 2),
    Sketcher.Constraint("Horizontal", 3),
    Sketcher.Constraint("DistanceX", 1, 1, 1, 2, Q("610 mm")),
    Sketcher.Constraint("DistanceY", 0, 2, 0, 1, Q("55 mm")),
    Sketcher.Constraint("DistanceX", 0, 2, -1, 1, Q("305 mm")),
    Sketcher.Constraint("DistanceY", -1, 1, 0, 2, Q("417 mm")),
])
sketch18.setExpression("Constraints[8]", "Params.sketch18_width")
sketch18.setExpression("Constraints[9]", "Params.sketch18_height")
pad18 = doc.addObject("PartDesign::Pad", "Pad017")
body18.addObject(pad18)
pad18.Profile = sketch18
pad18.setExpression("Length", "Params.pad18_length")

doc.recompute()
